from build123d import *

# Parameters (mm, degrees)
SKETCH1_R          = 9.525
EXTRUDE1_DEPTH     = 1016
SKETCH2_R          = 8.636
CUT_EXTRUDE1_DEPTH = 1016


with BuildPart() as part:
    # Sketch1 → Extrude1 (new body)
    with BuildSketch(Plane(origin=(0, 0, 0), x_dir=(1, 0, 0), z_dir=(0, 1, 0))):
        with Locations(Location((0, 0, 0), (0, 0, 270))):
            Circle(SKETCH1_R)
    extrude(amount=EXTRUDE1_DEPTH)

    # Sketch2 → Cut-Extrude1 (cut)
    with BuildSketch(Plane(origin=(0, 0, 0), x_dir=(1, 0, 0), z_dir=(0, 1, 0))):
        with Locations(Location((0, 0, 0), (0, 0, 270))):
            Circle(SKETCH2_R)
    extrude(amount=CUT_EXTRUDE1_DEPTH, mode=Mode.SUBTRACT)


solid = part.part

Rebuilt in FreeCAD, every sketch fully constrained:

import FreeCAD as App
import Part
import Sketcher
from FreeCAD import Vector
Q = App.Units.Quantity

doc = App.newDocument("Part")
params = doc.addObject("Spreadsheet::Sheet", "Params")
for row, (alias, value) in enumerate([
    ("sketch1_diameter", "0.75 in"),
    ("pad1_length", "40 in"),
    ("sketch2_diameter", "0.68 in"),
    ("pocket1_length", "40 in"),
], start=1):
    params.set(f"A{row}", alias)
    params.set(f"B{row}", "=" + value)
    params.setAlias(f"B{row}", alias)

body = doc.addObject("PartDesign::Body", "Body")

# Sketch on XZ plane
sketch1 = body.newObject("Sketcher::SketchObject", "Sketch")
sketch1.AttachmentSupport = (doc.getObject("XZ_Plane"), [""])
sketch1.MapMode = "FlatFace"
sketch1.addGeometry(Part.Circle(Vector(0, 0, 0), Vector(0, 0, 1), 9.525), False)
sketch1.addConstraint(Sketcher.Constraint("Coincident", 0, 3, -1, 1))
sketch1.addConstraint(Sketcher.Constraint("Diameter", 0, Q("0.75 in")))
sketch1.setExpression("Constraints[1]", "Params.sketch1_diameter")
pad1 = body.newObject("PartDesign::Pad", "Pad")
pad1.Profile = sketch1
pad1.setExpression("Length", "Params.pad1_length")
pad1.Reversed = True

# Sketch on XZ plane
sketch2 = body.newObject("Sketcher::SketchObject", "Sketch001")
sketch2.AttachmentSupport = (doc.getObject("XZ_Plane"), [""])
sketch2.MapMode = "FlatFace"
sketch2.addGeometry(Part.Circle(Vector(0, 0, 0), Vector(0, 0, 1), 8.636), False)
sketch2.addConstraint(Sketcher.Constraint("Coincident", 0, 3, -1, 1))
sketch2.addConstraint(Sketcher.Constraint("Diameter", 0, Q("0.68 in")))
sketch2.setExpression("Constraints[1]", "Params.sketch2_diameter")
pocket1 = body.newObject("PartDesign::Pocket", "Pocket")
pocket1.Profile = sketch2
pocket1.setExpression("Length", "Params.pocket1_length")

doc.recompute()
